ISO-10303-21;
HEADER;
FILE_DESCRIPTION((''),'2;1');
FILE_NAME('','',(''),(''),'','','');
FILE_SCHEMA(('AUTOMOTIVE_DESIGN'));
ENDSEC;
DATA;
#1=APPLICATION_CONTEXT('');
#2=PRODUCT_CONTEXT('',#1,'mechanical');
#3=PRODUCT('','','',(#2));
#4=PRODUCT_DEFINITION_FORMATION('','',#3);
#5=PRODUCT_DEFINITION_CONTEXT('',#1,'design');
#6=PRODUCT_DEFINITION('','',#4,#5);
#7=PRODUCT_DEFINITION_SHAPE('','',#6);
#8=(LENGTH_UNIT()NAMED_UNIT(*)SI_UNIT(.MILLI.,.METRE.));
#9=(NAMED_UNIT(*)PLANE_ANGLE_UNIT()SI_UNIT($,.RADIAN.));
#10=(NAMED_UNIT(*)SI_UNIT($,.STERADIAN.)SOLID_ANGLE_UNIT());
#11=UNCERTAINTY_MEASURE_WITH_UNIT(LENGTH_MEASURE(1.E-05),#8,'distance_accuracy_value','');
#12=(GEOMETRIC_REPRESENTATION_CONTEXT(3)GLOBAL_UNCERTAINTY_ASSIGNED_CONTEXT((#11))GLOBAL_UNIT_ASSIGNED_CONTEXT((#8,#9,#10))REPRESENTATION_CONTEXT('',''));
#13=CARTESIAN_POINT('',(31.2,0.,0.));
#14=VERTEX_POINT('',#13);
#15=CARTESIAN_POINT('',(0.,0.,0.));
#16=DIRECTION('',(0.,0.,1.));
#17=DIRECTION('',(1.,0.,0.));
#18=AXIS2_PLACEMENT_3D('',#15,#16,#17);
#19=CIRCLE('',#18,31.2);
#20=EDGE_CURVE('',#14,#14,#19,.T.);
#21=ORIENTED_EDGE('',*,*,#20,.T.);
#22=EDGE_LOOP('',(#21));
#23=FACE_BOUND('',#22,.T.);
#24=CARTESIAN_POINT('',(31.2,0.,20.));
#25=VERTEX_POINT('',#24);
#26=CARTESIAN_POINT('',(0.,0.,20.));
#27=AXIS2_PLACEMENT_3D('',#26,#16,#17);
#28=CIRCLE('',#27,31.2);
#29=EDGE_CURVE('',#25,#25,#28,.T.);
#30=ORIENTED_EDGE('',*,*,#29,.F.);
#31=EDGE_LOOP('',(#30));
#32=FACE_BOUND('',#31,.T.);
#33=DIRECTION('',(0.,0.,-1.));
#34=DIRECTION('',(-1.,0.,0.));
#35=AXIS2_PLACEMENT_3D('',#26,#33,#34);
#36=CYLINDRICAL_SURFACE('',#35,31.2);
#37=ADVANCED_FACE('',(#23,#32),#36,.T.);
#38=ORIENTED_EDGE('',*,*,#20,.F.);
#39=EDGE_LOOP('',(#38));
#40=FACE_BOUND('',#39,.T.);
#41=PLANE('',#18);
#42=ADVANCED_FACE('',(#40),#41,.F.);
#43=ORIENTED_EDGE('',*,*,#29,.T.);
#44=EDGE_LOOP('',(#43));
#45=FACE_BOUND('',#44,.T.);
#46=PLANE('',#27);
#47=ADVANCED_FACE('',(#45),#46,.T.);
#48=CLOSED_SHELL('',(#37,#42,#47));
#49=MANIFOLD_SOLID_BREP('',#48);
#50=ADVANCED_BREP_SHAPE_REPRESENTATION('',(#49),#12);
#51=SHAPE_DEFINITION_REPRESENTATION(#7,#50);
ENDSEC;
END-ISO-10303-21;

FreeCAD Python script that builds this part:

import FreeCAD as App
import Part
import Sketcher
Q = App.Units.Quantity

doc = App.newDocument("Part")
body = doc.addObject("PartDesign::Body", "Body")

# Sketch on XY plane
sketch1 = body.newObject("Sketcher::SketchObject", "Sketch")
sketch1.AttachmentSupport = (doc.getObject("XY_Plane"), [""])
sketch1.MapMode = "FlatFace"
sketch1.addGeometry(Part.Circle(App.Vector(0, 0, 0), App.Vector(0, 0, 1), 31.2), False)
sketch1.addConstraint([
    Sketcher.Constraint("Coincident", 0, 3, -1, 1),
    Sketcher.Constraint("Diameter", 0, Q("62.4 mm")),
])
pad1 = body.newObject("PartDesign::Pad", "Pad")
pad1.Profile = sketch1
pad1.Length = 20

doc.recompute()
